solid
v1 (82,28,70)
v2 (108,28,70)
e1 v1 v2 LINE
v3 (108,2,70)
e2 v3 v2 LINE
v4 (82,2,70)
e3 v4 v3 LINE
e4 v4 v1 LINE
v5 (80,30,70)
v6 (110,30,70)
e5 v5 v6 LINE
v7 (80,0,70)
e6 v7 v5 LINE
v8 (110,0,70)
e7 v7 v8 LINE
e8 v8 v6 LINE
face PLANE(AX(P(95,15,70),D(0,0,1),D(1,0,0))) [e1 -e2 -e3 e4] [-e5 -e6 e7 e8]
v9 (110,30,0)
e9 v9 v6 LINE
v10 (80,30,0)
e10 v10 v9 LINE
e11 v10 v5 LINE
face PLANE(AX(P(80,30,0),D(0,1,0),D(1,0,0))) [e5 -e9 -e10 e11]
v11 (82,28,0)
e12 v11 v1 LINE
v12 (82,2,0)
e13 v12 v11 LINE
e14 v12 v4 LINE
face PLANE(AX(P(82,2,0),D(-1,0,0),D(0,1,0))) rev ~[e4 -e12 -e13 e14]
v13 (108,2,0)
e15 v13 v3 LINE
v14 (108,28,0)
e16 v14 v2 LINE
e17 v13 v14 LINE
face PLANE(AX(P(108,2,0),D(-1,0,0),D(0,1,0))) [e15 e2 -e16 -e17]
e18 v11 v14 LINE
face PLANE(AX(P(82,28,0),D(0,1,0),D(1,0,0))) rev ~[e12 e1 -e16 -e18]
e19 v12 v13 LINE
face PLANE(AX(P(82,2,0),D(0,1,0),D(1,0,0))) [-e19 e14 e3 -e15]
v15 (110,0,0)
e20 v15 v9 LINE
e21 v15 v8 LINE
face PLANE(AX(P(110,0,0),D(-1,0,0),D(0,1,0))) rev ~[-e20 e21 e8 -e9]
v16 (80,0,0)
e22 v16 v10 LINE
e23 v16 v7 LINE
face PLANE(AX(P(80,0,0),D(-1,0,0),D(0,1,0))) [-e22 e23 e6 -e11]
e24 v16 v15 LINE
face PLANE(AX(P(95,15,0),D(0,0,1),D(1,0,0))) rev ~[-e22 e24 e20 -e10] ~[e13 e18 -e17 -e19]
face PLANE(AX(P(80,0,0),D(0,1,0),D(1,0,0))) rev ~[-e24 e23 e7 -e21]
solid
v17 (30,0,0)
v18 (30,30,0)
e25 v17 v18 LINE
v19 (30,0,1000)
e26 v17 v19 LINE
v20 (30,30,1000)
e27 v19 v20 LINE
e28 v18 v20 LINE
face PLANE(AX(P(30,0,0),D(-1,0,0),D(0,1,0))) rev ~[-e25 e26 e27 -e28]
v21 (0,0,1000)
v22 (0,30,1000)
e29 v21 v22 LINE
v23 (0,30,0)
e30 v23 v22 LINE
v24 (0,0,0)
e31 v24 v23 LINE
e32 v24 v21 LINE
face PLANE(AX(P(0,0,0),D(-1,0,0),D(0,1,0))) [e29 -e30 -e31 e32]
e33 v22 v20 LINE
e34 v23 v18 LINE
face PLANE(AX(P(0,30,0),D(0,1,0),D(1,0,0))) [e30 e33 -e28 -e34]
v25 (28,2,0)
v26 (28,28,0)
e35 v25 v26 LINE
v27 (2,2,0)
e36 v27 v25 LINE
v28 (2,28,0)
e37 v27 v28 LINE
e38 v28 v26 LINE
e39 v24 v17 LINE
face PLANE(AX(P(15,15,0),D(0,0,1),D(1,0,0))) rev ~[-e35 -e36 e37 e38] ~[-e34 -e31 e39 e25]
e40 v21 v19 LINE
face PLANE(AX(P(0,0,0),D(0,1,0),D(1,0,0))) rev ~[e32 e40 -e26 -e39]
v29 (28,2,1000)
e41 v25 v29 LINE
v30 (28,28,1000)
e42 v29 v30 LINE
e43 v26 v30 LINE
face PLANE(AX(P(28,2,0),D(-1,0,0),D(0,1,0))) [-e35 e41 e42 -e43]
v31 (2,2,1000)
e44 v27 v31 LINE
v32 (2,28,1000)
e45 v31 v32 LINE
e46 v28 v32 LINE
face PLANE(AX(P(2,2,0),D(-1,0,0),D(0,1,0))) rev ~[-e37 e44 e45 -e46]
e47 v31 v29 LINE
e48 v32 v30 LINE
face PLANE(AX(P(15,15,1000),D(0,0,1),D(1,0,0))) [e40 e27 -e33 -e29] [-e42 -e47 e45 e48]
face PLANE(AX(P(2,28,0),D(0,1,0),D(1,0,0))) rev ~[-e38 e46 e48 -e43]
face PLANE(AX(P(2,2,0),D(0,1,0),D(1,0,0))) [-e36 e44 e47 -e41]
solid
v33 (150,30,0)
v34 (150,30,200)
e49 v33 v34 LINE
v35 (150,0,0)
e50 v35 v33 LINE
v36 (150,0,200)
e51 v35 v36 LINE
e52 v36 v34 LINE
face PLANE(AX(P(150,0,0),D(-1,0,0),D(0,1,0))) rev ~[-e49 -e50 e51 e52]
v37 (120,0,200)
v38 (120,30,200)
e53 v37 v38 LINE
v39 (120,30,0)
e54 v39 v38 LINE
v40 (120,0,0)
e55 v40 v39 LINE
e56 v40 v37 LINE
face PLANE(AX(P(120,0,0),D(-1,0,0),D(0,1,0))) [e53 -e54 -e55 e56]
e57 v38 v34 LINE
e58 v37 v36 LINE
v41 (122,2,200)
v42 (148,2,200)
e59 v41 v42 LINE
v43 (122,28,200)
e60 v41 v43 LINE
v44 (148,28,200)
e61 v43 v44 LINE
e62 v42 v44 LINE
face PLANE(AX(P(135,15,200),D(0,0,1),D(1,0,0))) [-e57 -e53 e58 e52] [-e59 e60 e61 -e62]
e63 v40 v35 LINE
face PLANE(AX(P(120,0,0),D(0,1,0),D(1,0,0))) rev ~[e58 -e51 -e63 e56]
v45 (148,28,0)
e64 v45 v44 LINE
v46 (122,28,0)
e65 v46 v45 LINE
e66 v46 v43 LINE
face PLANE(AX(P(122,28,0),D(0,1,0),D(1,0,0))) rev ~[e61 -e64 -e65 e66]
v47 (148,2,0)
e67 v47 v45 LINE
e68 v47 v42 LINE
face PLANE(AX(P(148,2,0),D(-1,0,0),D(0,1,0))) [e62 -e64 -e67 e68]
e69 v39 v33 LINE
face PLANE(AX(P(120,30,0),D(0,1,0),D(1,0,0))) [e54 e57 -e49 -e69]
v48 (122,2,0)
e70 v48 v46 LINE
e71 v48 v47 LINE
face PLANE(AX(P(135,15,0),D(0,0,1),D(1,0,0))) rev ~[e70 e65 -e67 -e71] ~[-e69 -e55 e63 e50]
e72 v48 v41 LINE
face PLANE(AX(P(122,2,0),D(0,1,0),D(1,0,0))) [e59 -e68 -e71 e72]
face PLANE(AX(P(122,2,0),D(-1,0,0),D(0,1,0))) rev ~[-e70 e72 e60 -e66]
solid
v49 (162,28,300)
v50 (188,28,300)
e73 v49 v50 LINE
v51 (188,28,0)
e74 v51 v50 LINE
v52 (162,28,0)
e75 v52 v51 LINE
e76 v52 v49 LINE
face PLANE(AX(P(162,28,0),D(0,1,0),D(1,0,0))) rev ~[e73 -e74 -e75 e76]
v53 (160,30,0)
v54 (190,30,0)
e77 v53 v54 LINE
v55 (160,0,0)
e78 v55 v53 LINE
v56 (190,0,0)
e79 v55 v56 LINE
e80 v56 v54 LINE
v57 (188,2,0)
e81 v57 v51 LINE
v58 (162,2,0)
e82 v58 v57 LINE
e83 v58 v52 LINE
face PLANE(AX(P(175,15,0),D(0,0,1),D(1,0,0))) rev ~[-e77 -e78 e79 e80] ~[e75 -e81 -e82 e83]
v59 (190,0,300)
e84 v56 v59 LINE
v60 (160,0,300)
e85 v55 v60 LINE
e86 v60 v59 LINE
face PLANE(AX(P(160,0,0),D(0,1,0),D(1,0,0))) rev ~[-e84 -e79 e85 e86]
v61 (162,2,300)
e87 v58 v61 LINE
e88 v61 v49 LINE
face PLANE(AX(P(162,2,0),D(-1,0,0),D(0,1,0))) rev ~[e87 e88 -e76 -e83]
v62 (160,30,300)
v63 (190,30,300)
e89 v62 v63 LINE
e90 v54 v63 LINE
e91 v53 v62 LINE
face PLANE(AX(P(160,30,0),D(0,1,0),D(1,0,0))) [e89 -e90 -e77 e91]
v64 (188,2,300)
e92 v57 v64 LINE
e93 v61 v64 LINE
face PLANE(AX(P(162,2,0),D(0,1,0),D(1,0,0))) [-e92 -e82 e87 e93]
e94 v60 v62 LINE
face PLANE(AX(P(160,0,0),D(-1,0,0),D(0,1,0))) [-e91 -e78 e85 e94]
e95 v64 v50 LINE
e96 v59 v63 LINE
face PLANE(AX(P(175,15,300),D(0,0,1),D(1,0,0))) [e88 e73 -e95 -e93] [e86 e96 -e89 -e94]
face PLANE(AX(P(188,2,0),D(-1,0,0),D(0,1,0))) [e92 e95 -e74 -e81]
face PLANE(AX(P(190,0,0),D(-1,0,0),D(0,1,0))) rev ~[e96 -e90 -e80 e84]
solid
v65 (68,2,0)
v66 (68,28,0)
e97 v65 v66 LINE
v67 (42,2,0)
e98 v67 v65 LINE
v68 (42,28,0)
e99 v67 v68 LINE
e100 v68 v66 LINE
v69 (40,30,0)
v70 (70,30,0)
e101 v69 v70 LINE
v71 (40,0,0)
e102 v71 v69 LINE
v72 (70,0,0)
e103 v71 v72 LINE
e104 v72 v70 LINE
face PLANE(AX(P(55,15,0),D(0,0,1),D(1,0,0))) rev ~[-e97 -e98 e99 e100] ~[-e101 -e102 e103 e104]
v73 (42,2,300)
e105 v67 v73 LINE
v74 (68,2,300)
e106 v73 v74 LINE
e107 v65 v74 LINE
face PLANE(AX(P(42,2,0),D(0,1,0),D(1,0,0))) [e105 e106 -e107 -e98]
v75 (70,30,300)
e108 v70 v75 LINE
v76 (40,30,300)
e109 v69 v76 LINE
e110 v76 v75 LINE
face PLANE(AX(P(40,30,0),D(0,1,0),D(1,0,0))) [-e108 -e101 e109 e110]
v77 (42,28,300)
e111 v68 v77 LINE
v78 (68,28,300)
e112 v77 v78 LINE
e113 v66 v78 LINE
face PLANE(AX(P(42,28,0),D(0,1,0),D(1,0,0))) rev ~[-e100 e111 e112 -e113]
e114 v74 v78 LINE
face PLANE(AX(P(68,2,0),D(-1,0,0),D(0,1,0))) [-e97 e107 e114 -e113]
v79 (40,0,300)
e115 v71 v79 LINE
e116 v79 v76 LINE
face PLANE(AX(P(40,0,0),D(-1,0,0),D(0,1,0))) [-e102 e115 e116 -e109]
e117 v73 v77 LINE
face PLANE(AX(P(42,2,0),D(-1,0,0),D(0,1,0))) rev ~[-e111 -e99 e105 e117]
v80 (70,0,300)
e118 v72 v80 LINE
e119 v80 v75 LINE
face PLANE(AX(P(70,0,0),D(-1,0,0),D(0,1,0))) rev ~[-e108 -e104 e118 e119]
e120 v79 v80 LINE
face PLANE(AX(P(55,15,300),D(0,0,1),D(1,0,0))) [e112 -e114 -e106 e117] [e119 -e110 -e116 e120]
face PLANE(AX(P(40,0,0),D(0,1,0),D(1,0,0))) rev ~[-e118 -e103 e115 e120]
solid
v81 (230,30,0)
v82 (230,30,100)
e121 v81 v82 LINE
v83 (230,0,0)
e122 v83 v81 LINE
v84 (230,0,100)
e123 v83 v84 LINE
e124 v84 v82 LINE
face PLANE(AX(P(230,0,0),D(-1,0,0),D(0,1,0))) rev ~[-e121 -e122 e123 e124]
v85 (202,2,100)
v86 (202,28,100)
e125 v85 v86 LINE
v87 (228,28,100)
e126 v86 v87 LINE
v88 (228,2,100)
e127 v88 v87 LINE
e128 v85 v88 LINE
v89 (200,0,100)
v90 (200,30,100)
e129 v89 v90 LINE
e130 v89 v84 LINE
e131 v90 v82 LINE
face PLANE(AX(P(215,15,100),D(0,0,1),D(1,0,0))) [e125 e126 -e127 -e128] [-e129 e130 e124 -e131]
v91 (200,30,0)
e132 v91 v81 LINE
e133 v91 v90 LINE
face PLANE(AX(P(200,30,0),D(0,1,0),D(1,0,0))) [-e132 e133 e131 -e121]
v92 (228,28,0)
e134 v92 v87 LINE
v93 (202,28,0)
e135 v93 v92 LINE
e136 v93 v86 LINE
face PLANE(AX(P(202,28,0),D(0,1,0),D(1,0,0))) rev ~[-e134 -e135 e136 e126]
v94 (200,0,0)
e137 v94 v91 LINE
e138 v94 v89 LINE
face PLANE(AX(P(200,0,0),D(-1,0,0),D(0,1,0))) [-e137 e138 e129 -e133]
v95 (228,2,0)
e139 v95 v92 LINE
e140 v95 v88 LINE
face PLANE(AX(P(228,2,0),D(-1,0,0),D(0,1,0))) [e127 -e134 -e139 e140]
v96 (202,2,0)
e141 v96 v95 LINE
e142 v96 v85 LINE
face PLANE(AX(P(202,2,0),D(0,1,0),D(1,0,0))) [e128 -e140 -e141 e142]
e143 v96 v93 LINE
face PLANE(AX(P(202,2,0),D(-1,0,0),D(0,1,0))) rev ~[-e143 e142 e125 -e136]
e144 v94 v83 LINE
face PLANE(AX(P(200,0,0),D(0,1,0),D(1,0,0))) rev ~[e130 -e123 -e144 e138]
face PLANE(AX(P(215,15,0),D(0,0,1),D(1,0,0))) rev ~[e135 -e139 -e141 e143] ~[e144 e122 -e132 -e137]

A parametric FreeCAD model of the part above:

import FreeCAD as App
import Part
import Sketcher
from FreeCAD import Vector
Q = App.Units.Quantity

doc = App.newDocument("Part")
body = doc.addObject("PartDesign::Body", "Body")

# Sketch on XY plane
sketch1 = body.newObject("Sketcher::SketchObject", "Sketch")
sketch1.AttachmentSupport = (doc.getObject("XY_Plane"), [""])
sketch1.MapMode = "FlatFace"
sketch1.addGeometry([
    Part.LineSegment(Vector(0, 30, 0), Vector(0, 0, 0)),  # 0
    Part.LineSegment(Vector(0, 0, 0), Vector(30, 0, 0)),  # 1
    Part.LineSegment(Vector(30, 0, 0), Vector(30, 30, 0)),  # 2
    Part.LineSegment(Vector(30, 30, 0), Vector(0, 30, 0)),  # 3
    Part.LineSegment(Vector(28, 2, 0), Vector(2, 2, 0)),  # 4
    Part.LineSegment(Vector(2, 2, 0), Vector(2, 28, 0)),  # 5
    Part.LineSegment(Vector(2, 28, 0), Vector(28, 28, 0)),  # 6
    Part.LineSegment(Vector(28, 28, 0), Vector(28, 2, 0)),  # 7
], False)
sketch1.addConstraint([
    Sketcher.Constraint("Coincident", 0, 2, 1, 1),
    Sketcher.Constraint("Coincident", 1, 2, 2, 1),
    Sketcher.Constraint("Coincident", 2, 2, 3, 1),
    Sketcher.Constraint("Coincident", 3, 2, 0, 1),
    Sketcher.Constraint("Coincident", 4, 2, 5, 1),
    Sketcher.Constraint("Coincident", 5, 2, 6, 1),
    Sketcher.Constraint("Coincident", 6, 2, 7, 1),
    Sketcher.Constraint("Coincident", 7, 2, 4, 1),
    Sketcher.Constraint("Vertical", 0),
    Sketcher.Constraint("Horizontal", 1),
    Sketcher.Constraint("Vertical", 2),
    Sketcher.Constraint("Horizontal", 3),
    Sketcher.Constraint("Horizontal", 4),
    Sketcher.Constraint("Vertical", 5),
    Sketcher.Constraint("Horizontal", 6),
    Sketcher.Constraint("Vertical", 7),
    Sketcher.Constraint("Coincident", 0, 2, -1, 1),
    Sketcher.Constraint("Equal", 3, 0),
    Sketcher.Constraint("Equal", 6, 5),
    Sketcher.Constraint("DistanceX", 1, 1, 1, 2, Q("30 mm")),
    Sketcher.Constraint("DistanceX", 4, 2, 4, 1, Q("26 mm")),
    Sketcher.Constraint("DistanceX", -1, 1, 4, 2, Q("2 mm")),
    Sketcher.Constraint("DistanceY", -1, 1, 4, 2, Q("2 mm")),
])
pad1 = body.newObject("PartDesign::Pad", "Pad")
pad1.Profile = sketch1
pad1.Length = 1000
body2 = doc.addObject("PartDesign::Body", "Body001")

# Sketch on XY plane
sketch2 = body2.newObject("Sketcher::SketchObject", "Sketch001")
sketch2.AttachmentSupport = (doc.getObject("XY_Plane001"), [""])
sketch2.MapMode = "FlatFace"
sketch2.addGeometry([
    Part.LineSegment(Vector(40, 30, 0), Vector(40, 0, 0)),  # 0
    Part.LineSegment(Vector(40, 0, 0), Vector(70, 0, 0)),  # 1
    Part.LineSegment(Vector(70, 0, 0), Vector(70, 30, 0)),  # 2
    Part.LineSegment(Vector(70, 30, 0), Vector(40, 30, 0)),  # 3
    Part.LineSegment(Vector(68, 2, 0), Vector(42, 2, 0)),  # 4
    Part.LineSegment(Vector(42, 2, 0), Vector(42, 28, 0)),  # 5
    Part.LineSegment(Vector(42, 28, 0), Vector(68, 28, 0)),  # 6
    Part.LineSegment(Vector(68, 28, 0), Vector(68, 2, 0)),  # 7
], False)
sketch2.addConstraint([
    Sketcher.Constraint("Coincident", 0, 2, 1, 1),
    Sketcher.Constraint("Coincident", 1, 2, 2, 1),
    Sketcher.Constraint("Coincident", 2, 2, 3, 1),
    Sketcher.Constraint("Coincident", 3, 2, 0, 1),
    Sketcher.Constraint("Coincident", 4, 2, 5, 1),
    Sketcher.Constraint("Coincident", 5, 2, 6, 1),
    Sketcher.Constraint("Coincident", 6, 2, 7, 1),
    Sketcher.Constraint("Coincident", 7, 2, 4, 1),
    Sketcher.Constraint("Vertical", 0),
    Sketcher.Constraint("Horizontal", 1),
    Sketcher.Constraint("Vertical", 2),
    Sketcher.Constraint("Horizontal", 3),
    Sketcher.Constraint("Horizontal", 4),
    Sketcher.Constraint("Vertical", 5),
    Sketcher.Constraint("Horizontal", 6),
    Sketcher.Constraint("Vertical", 7),
    Sketcher.Constraint("PointOnObject", 0, 2, -1),
    Sketcher.Constraint("Equal", 3, 0),
    Sketcher.Constraint("Equal", 6, 5),
    Sketcher.Constraint("DistanceX", 1, 1, 1, 2, Q("30 mm")),
    Sketcher.Constraint("DistanceX", 4, 2, 4, 1, Q("26 mm")),
    Sketcher.Constraint("DistanceX", -1, 1, 0, 2, Q("40 mm")),
    Sketcher.Constraint("DistanceX", -1, 1, 4, 2, Q("42 mm")),
    Sketcher.Constraint("DistanceY", -1, 1, 4, 2, Q("2 mm")),
])
pad2 = body2.newObject("PartDesign::Pad", "Pad001")
pad2.Profile = sketch2
pad2.Length = 300
body3 = doc.addObject("PartDesign::Body", "Body002")

# Sketch on XY plane
sketch3 = body3.newObject("Sketcher::SketchObject", "Sketch002")
sketch3.AttachmentSupport = (doc.getObject("XY_Plane002"), [""])
sketch3.MapMode = "FlatFace"
sketch3.addGeometry([
    Part.LineSegment(Vector(80, 30, 0), Vector(80, 0, 0)),  # 0
    Part.LineSegment(Vector(80, 0, 0), Vector(110, 0, 0)),  # 1
    Part.LineSegment(Vector(110, 0, 0), Vector(110, 30, 0)),  # 2
    Part.LineSegment(Vector(110, 30, 0), Vector(80, 30, 0)),  # 3
    Part.LineSegment(Vector(108, 2, 0), Vector(82, 2, 0)),  # 4
    Part.LineSegment(Vector(82, 2, 0), Vector(82, 28, 0)),  # 5
    Part.LineSegment(Vector(82, 28, 0), Vector(108, 28, 0)),  # 6
    Part.LineSegment(Vector(108, 28, 0), Vector(108, 2, 0)),  # 7
], False)
sketch3.addConstraint([
    Sketcher.Constraint("Coincident", 0, 2, 1, 1),
    Sketcher.Constraint("Coincident", 1, 2, 2, 1),
    Sketcher.Constraint("Coincident", 2, 2, 3, 1),
    Sketcher.Constraint("Coincident", 3, 2, 0, 1),
    Sketcher.Constraint("Coincident", 4, 2, 5, 1),
    Sketcher.Constraint("Coincident", 5, 2, 6, 1),
    Sketcher.Constraint("Coincident", 6, 2, 7, 1),
    Sketcher.Constraint("Coincident", 7, 2, 4, 1),
    Sketcher.Constraint("Vertical", 0),
    Sketcher.Constraint("Horizontal", 1),
    Sketcher.Constraint("Vertical", 2),
    Sketcher.Constraint("Horizontal", 3),
    Sketcher.Constraint("Horizontal", 4),
    Sketcher.Constraint("Vertical", 5),
    Sketcher.Constraint("Horizontal", 6),
    Sketcher.Constraint("Vertical", 7),
    Sketcher.Constraint("PointOnObject", 0, 2, -1),
    Sketcher.Constraint("Equal", 3, 0),
    Sketcher.Constraint("Equal", 6, 5),
    Sketcher.Constraint("DistanceX", 1, 1, 1, 2, Q("30 mm")),
    Sketcher.Constraint("DistanceX", 4, 2, 4, 1, Q("26 mm")),
    Sketcher.Constraint("DistanceX", -1, 1, 0, 2, Q("80 mm")),
    Sketcher.Constraint("DistanceX", -1, 1, 4, 2, Q("82 mm")),
    Sketcher.Constraint("DistanceY", -1, 1, 4, 2, Q("2 mm")),
])
pad3 = body3.newObject("PartDesign::Pad", "Pad002")
pad3.Profile = sketch3
pad3.Length = 70
body4 = doc.addObject("PartDesign::Body", "Body003")

# Sketch on XY plane
sketch4 = body4.newObject("Sketcher::SketchObject", "Sketch003")
sketch4.AttachmentSupport = (doc.getObject("XY_Plane003"), [""])
sketch4.MapMode = "FlatFace"
sketch4.addGeometry([
    Part.LineSegment(Vector(120, 30, 0), Vector(120, 0, 0)),  # 0
    Part.LineSegment(Vector(120, 0, 0), Vector(150, 0, 0)),  # 1
    Part.LineSegment(Vector(150, 0, 0), Vector(150, 30, 0)),  # 2
    Part.LineSegment(Vector(150, 30, 0), Vector(120, 30, 0)),  # 3
    Part.LineSegment(Vector(148, 2, 0), Vector(122, 2, 0)),  # 4
    Part.LineSegment(Vector(122, 2, 0), Vector(122, 28, 0)),  # 5
    Part.LineSegment(Vector(122, 28, 0), Vector(148, 28, 0)),  # 6
    Part.LineSegment(Vector(148, 28, 0), Vector(148, 2, 0)),  # 7
], False)
sketch4.addConstraint([
    Sketcher.Constraint("Coincident", 0, 2, 1, 1),
    Sketcher.Constraint("Coincident", 1, 2, 2, 1),
    Sketcher.Constraint("Coincident", 2, 2, 3, 1),
    Sketcher.Constraint("Coincident", 3, 2, 0, 1),
    Sketcher.Constraint("Coincident", 4, 2, 5, 1),
    Sketcher.Constraint("Coincident", 5, 2, 6, 1),
    Sketcher.Constraint("Coincident", 6, 2, 7, 1),
    Sketcher.Constraint("Coincident", 7, 2, 4, 1),
    Sketcher.Constraint("Vertical", 0),
    Sketcher.Constraint("Horizontal", 1),
    Sketcher.Constraint("Vertical", 2),
    Sketcher.Constraint("Horizontal", 3),
    Sketcher.Constraint("Horizontal", 4),
    Sketcher.Constraint("Vertical", 5),
    Sketcher.Constraint("Horizontal", 6),
    Sketcher.Constraint("Vertical", 7),
    Sketcher.Constraint("PointOnObject", 0, 2, -1),
    Sketcher.Constraint("Equal", 3, 0),
    Sketcher.Constraint("Equal", 6, 5),
    Sketcher.Constraint("DistanceX", 1, 1, 1, 2, Q("30 mm")),
    Sketcher.Constraint("DistanceX", 4, 2, 4, 1, Q("26 mm")),
    Sketcher.Constraint("DistanceX", -1, 1, 0, 2, Q("120 mm")),
    Sketcher.Constraint("DistanceX", -1, 1, 4, 2, Q("122 mm")),
    Sketcher.Constraint("DistanceY", -1, 1, 4, 2, Q("2 mm")),
])
pad4 = body4.newObject("PartDesign::Pad", "Pad003")
pad4.Profile = sketch4
pad4.Length = 200
body5 = doc.addObject("PartDesign::Body", "Body004")

# Sketch on XY plane
sketch5 = body5.newObject("Sketcher::SketchObject", "Sketch004")
sketch5.AttachmentSupport = (doc.getObject("XY_Plane004"), [""])
sketch5.MapMode = "FlatFace"
sketch5.addGeometry([
    Part.LineSegment(Vector(160, 30, 0), Vector(160, 0, 0)),  # 0
    Part.LineSegment(Vector(160, 0, 0), Vector(190, 0, 0)),  # 1
    Part.LineSegment(Vector(190, 0, 0), Vector(190, 30, 0)),  # 2
    Part.LineSegment(Vector(190, 30, 0), Vector(160, 30, 0)),  # 3
    Part.LineSegment(Vector(188, 2, 0), Vector(162, 2, 0)),  # 4
    Part.LineSegment(Vector(162, 2, 0), Vector(162, 28, 0)),  # 5
    Part.LineSegment(Vector(162, 28, 0), Vector(188, 28, 0)),  # 6
    Part.LineSegment(Vector(188, 28, 0), Vector(188, 2, 0)),  # 7
], False)
sketch5.addConstraint([
    Sketcher.Constraint("Coincident", 0, 2, 1, 1),
    Sketcher.Constraint("Coincident", 1, 2, 2, 1),
    Sketcher.Constraint("Coincident", 2, 2, 3, 1),
    Sketcher.Constraint("Coincident", 3, 2, 0, 1),
    Sketcher.Constraint("Coincident", 4, 2, 5, 1),
    Sketcher.Constraint("Coincident", 5, 2, 6, 1),
    Sketcher.Constraint("Coincident", 6, 2, 7, 1),
    Sketcher.Constraint("Coincident", 7, 2, 4, 1),
    Sketcher.Constraint("Vertical", 0),
    Sketcher.Constraint("Horizontal", 1),
    Sketcher.Constraint("Vertical", 2),
    Sketcher.Constraint("Horizontal", 3),
    Sketcher.Constraint("Horizontal", 4),
    Sketcher.Constraint("Vertical", 5),
    Sketcher.Constraint("Horizontal", 6),
    Sketcher.Constraint("Vertical", 7),
    Sketcher.Constraint("PointOnObject", 0, 2, -1),
    Sketcher.Constraint("Equal", 3, 0),
    Sketcher.Constraint("Equal", 6, 5),
    Sketcher.Constraint("DistanceX", 1, 1, 1, 2, Q("30 mm")),
    Sketcher.Constraint("DistanceX", 4, 2, 4, 1, Q("26 mm")),
    Sketcher.Constraint("DistanceX", -1, 1, 0, 2, Q("160 mm")),
    Sketcher.Constraint("DistanceX", -1, 1, 4, 2, Q("162 mm")),
    Sketcher.Constraint("DistanceY", -1, 1, 4, 2, Q("2 mm")),
])
pad5 = body5.newObject("PartDesign::Pad", "Pad004")
pad5.Profile = sketch5
pad5.Length = 300
body6 = doc.addObject("PartDesign::Body", "Body005")

# Sketch on XY plane
sketch6 = body6.newObject("Sketcher::SketchObject", "Sketch005")
sketch6.AttachmentSupport = (doc.getObject("XY_Plane005"), [""])
sketch6.MapMode = "FlatFace"
sketch6.addGeometry([
    Part.LineSegment(Vector(200, 30, 0), Vector(200, 0, 0)),  # 0
    Part.LineSegment(Vector(200, 0, 0), Vector(230, 0, 0)),  # 1
    Part.LineSegment(Vector(230, 0, 0), Vector(230, 30, 0)),  # 2
    Part.LineSegment(Vector(230, 30, 0), Vector(200, 30, 0)),  # 3
    Part.LineSegment(Vector(228, 2, 0), Vector(202, 2, 0)),  # 4
    Part.LineSegment(Vector(202, 2, 0), Vector(202, 28, 0)),  # 5
    Part.LineSegment(Vector(202, 28, 0), Vector(228, 28, 0)),  # 6
    Part.LineSegment(Vector(228, 28, 0), Vector(228, 2, 0)),  # 7
], False)
sketch6.addConstraint([
    Sketcher.Constraint("Coincident", 0, 2, 1, 1),
    Sketcher.Constraint("Coincident", 1, 2, 2, 1),
    Sketcher.Constraint("Coincident", 2, 2, 3, 1),
    Sketcher.Constraint("Coincident", 3, 2, 0, 1),
    Sketcher.Constraint("Coincident", 4, 2, 5, 1),
    Sketcher.Constraint("Coincident", 5, 2, 6, 1),
    Sketcher.Constraint("Coincident", 6, 2, 7, 1),
    Sketcher.Constraint("Coincident", 7, 2, 4, 1),
    Sketcher.Constraint("Vertical", 0),
    Sketcher.Constraint("Horizontal", 1),
    Sketcher.Constraint("Vertical", 2),
    Sketcher.Constraint("Horizontal", 3),
    Sketcher.Constraint("Horizontal", 4),
    Sketcher.Constraint("Vertical", 5),
    Sketcher.Constraint("Horizontal", 6),
    Sketcher.Constraint("Vertical", 7),
    Sketcher.Constraint("PointOnObject", 0, 2, -1),
    Sketcher.Constraint("Equal", 3, 0),
    Sketcher.Constraint("Equal", 6, 5),
    Sketcher.Constraint("DistanceX", 1, 1, 1, 2, Q("30 mm")),
    Sketcher.Constraint("DistanceX", 4, 2, 4, 1, Q("26 mm")),
    Sketcher.Constraint("DistanceX", -1, 1, 0, 2, Q("200 mm")),
    Sketcher.Constraint("DistanceX", -1, 1, 4, 2, Q("202 mm")),
    Sketcher.Constraint("DistanceY", -1, 1, 4, 2, Q("2 mm")),
])
pad6 = body6.newObject("PartDesign::Pad", "Pad005")
pad6.Profile = sketch6
pad6.Length = 100

doc.recompute()
